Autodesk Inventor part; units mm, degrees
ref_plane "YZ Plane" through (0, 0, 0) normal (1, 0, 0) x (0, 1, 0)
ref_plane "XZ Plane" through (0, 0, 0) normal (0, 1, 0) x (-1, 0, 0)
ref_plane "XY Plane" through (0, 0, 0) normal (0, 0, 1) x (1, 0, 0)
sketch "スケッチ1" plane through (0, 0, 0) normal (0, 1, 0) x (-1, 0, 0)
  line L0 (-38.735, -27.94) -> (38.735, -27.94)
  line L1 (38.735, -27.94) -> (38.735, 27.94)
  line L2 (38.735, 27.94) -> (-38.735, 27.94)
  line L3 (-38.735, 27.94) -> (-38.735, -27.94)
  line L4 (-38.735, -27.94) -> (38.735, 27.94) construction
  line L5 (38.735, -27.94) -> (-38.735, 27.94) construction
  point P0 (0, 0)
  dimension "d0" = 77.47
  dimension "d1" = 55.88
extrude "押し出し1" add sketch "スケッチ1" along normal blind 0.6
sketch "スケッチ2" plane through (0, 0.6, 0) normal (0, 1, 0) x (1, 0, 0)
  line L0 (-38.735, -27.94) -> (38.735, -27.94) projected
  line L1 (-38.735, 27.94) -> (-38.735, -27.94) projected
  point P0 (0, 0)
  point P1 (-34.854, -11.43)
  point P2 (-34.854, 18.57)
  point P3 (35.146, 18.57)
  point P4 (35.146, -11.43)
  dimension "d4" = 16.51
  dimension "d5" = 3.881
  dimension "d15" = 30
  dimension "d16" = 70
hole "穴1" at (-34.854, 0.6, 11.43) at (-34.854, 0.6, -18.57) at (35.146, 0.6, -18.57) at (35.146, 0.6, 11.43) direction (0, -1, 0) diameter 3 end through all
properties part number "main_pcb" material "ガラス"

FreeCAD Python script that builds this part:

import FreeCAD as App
import Part
import Sketcher
Q = App.Units.Quantity


def add_polygon(sketch, points):
    """Adds a closed chain of lines whose ends are joined by coincident constraints."""
    first, n = sketch.GeometryCount, len(points)
    for a, b in zip(points, points[1:] + points[:1]):
        sketch.addGeometry(Part.LineSegment(App.Vector(*a, 0), App.Vector(*b, 0)), False)
    for i in range(n):
        sketch.addConstraint(Sketcher.Constraint("Coincident", first + i, 2, first + (i + 1) % n, 1))

doc = App.newDocument("Part")
params = doc.addObject("Spreadsheet::Sheet", "Params")
for row, (alias, value) in enumerate([
    ("sketch1_height", "2.2 in"),
    ("sketch1_width", "3.05 in"),
    ("pad1_length", "0.6 mm"),
    ("hole_diameter", "0.1181102 in"),
], start=1):
    params.set(f"A{row}", alias)
    params.set(f"B{row}", "=" + value)
    params.setAlias(f"B{row}", alias)

body = doc.addObject("PartDesign::Body", "Body")

sketch1 = body.newObject("Sketcher::SketchObject", "Sketch")
sketch1.AttachmentSupport = (doc.getObject("XZ_Plane"), [""])
sketch1.MapMode = "FlatFace"
add_polygon(sketch1, [(38.735, 27.94), (38.735, -27.94), (-38.735, -27.94), (-38.735, 27.94)])
sketch1.addConstraint(Sketcher.Constraint("Vertical", 0))
sketch1.addConstraint(Sketcher.Constraint("Horizontal", 1))
sketch1.addConstraint(Sketcher.Constraint("Vertical", 2))
sketch1.addConstraint(Sketcher.Constraint("Horizontal", 3))
sketch1.addConstraint(Sketcher.Constraint("Symmetric", 0, 2, 2, 2, -1, 1))
sketch1.addConstraint(Sketcher.Constraint("DistanceY", 0, 2, 0, 1, Q("2.2 in")))
sketch1.addConstraint(Sketcher.Constraint("DistanceX", 1, 2, 1, 1, Q("3.05 in")))
sketch1.setExpression("Constraints[9]", "Params.sketch1_height")
sketch1.setExpression("Constraints[10]", "Params.sketch1_width")
pad1 = body.newObject("PartDesign::Pad", "Pad")
pad1.Profile = sketch1
pad1.setExpression("Length", "Params.pad1_length")
pad1.Reversed = True

sketch2 = body.newObject("Sketcher::SketchObject", "Sketch001")
sketch2.AttachmentSupport = (doc.getObject("XZ_Plane"), [""])
sketch2.MapMode = "FlatFace"
sketch2.AttachmentOffset = App.Placement(App.Vector(0, 0, -0.6), App.Rotation())
sketch2.addGeometry(Part.Circle(App.Vector(-34.854, 11.43, 0), App.Vector(0, 0, 1), 1.5), False)
sketch2.addGeometry(Part.Circle(App.Vector(-34.854, -18.57, 0), App.Vector(0, 0, 1), 1.5), False)
sketch2.addGeometry(Part.Circle(App.Vector(35.146, -18.57, 0), App.Vector(0, 0, 1), 1.5), False)
sketch2.addGeometry(Part.Circle(App.Vector(35.146, 11.43, 0), App.Vector(0, 0, 1), 1.5), False)
sketch2.addConstraint(Sketcher.Constraint("Equal", 0, 1))
sketch2.addConstraint(Sketcher.Constraint("Equal", 1, 2))
sketch2.addConstraint(Sketcher.Constraint("Equal", 2, 3))
sketch2.addConstraint(Sketcher.Constraint("Horizontal", 1, 3, 2, 3))
sketch2.addConstraint(Sketcher.Constraint("Horizontal", 0, 3, 3, 3))
sketch2.addConstraint(Sketcher.Constraint("Vertical", 0, 3, 1, 3))
sketch2.addConstraint(Sketcher.Constraint("Vertical", 2, 3, 3, 3))
sketch2.addConstraint(Sketcher.Constraint("Diameter", 0, Q("0.1181 in")))
sketch2.addConstraint(Sketcher.Constraint("DistanceY", -1, 1, 0, 3, Q("0.45 in")))
sketch2.addConstraint(Sketcher.Constraint("DistanceX", 0, 3, -1, 1, Q("1.3722 in")))
sketch2.addConstraint(Sketcher.Constraint("DistanceY", 1, 3, -1, 1, Q("0.7311 in")))
sketch2.addConstraint(Sketcher.Constraint("DistanceX", -1, 1, 2, 3, Q("1.3837 in")))
doc.recompute()
hole = body.newObject("PartDesign::Hole", "Hole")
hole.Profile = sketch2
hole.ThreadType = "None"
hole.setExpression("Diameter", "Params.hole_diameter")
hole.DepthType = "ThroughAll"
hole.Reversed = True

doc.recompute()
